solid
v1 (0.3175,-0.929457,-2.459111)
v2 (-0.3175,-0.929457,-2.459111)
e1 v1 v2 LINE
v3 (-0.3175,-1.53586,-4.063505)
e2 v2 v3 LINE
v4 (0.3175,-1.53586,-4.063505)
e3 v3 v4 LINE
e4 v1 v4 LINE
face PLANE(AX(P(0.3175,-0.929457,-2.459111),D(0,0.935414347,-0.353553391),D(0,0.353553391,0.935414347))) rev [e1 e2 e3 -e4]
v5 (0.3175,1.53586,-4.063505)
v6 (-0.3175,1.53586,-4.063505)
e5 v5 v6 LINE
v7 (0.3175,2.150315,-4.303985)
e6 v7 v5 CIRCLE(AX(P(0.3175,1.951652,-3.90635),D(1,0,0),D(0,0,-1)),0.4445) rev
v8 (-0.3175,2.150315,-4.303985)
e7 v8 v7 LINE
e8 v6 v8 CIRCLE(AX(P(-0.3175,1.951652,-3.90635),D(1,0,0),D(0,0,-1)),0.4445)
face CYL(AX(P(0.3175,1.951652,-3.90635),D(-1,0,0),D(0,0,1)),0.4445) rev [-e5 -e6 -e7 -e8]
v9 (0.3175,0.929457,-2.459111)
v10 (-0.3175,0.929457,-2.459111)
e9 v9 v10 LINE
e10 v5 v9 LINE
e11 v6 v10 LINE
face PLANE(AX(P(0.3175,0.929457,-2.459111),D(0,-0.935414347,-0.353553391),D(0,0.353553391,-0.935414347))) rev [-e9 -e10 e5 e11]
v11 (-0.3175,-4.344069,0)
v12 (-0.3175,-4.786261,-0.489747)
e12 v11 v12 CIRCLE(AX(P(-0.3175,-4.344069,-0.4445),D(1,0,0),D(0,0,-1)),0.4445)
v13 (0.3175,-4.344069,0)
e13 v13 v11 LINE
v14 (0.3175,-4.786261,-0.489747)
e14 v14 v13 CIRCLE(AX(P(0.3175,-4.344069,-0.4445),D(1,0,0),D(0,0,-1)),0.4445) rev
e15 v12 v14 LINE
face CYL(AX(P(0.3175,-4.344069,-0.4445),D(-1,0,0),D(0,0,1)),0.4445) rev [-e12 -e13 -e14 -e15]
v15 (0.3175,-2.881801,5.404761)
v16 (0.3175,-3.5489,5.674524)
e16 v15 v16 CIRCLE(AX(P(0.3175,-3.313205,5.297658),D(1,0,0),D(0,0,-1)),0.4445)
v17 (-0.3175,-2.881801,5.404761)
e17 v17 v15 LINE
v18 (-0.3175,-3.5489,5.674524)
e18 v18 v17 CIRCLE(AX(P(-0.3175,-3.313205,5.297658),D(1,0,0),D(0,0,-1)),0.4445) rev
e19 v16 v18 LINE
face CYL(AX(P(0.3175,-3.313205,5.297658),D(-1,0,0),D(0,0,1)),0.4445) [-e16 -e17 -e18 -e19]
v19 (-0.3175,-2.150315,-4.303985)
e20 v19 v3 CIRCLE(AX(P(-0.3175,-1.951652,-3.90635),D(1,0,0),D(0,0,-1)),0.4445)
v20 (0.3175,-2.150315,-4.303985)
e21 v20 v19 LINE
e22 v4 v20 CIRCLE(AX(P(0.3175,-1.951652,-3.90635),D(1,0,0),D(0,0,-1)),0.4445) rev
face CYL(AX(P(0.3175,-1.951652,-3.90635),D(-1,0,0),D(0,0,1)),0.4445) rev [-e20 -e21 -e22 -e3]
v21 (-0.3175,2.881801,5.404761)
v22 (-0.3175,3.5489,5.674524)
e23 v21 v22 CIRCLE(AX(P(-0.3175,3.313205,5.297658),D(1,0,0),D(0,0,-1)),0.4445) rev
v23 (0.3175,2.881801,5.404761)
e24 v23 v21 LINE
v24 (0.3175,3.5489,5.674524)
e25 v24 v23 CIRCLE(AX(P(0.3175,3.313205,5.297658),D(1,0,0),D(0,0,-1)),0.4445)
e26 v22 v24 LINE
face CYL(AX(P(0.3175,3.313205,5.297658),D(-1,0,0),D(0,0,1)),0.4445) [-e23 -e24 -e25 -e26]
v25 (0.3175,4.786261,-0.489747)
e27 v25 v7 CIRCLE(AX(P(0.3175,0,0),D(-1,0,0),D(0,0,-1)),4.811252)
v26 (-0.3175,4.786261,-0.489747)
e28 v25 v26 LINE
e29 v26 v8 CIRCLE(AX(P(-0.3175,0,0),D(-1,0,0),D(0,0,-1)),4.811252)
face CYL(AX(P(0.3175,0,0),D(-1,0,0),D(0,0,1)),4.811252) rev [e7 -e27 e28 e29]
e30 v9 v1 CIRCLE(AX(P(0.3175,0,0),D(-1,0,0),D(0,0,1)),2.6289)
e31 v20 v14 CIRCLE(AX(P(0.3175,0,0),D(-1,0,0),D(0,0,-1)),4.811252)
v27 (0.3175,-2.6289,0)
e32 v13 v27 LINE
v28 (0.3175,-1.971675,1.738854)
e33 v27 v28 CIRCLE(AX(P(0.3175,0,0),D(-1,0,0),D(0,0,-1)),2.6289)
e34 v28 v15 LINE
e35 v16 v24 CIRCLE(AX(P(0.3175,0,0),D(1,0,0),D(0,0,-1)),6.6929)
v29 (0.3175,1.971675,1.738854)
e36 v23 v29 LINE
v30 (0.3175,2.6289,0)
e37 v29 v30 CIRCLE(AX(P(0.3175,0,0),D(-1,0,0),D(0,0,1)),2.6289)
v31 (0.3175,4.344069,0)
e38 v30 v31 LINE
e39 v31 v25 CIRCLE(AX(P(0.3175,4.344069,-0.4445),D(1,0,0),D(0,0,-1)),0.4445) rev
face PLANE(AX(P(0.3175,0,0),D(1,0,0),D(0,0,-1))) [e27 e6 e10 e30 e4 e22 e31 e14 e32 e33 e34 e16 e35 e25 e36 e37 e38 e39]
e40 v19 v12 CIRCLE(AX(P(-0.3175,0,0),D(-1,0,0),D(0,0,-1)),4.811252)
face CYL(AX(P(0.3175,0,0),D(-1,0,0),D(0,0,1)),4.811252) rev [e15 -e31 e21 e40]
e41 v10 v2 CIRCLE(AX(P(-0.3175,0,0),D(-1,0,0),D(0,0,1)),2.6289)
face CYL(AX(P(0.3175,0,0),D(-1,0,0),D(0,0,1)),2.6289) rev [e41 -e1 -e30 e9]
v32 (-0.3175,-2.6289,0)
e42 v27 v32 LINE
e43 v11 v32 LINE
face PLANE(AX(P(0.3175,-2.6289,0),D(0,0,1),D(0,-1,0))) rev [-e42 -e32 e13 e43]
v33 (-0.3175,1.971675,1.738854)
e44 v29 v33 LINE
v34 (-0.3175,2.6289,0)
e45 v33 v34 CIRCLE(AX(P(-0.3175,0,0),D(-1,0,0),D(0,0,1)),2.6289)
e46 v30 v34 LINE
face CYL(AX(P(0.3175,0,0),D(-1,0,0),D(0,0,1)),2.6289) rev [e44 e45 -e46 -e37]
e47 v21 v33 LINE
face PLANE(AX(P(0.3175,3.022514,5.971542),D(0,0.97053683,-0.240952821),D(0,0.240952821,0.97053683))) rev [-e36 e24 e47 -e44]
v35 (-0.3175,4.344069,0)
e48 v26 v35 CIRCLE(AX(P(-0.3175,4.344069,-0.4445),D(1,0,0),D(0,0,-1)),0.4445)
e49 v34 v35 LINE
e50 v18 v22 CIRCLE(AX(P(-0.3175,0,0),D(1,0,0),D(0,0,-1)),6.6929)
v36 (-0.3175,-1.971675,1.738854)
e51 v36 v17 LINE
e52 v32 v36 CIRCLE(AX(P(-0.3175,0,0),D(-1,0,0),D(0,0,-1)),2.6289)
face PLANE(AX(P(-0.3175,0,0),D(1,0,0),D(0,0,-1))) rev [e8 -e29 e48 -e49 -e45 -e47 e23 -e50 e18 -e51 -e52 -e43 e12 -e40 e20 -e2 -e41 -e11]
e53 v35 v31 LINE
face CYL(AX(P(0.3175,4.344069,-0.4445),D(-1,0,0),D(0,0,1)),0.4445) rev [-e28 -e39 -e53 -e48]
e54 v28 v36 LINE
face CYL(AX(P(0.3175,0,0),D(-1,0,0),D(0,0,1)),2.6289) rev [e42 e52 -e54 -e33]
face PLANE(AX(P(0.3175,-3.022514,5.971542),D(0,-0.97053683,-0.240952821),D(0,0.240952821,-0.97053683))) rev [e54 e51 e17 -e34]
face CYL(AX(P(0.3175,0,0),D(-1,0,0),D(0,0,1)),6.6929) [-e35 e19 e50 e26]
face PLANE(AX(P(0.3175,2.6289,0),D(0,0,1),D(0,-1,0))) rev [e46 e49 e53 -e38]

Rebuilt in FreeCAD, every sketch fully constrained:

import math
import FreeCAD as App
import Part
import Sketcher
Q = App.Units.Quantity


def edges_at(feature, points):
    """Names of the edges that pass closest to the given points."""
    edges = feature.Shape.Edges
    near = lambda p: min(range(len(edges)), key=lambda i: edges[i].distToShape(Part.Vertex(*p))[0])
    return sorted({f"Edge{near(p) + 1}" for p in points})

doc = App.newDocument("Part")
params = doc.addObject("Spreadsheet::Sheet", "Params")
for row, (alias, value) in enumerate([
    ("pad1_length", "0.025 in"),
    ("fillet_radius", "0.0175 in"),
], start=1):
    params.set(f"A{row}", alias)
    params.set(f"B{row}", "=" + value)
    params.setAlias(f"B{row}", alias)

body = doc.addObject("PartDesign::Body", "Body")

sketch1 = doc.addObject("Sketcher::SketchObject", "Sketch")
body.addObject(sketch1)
sketch1.AttachmentSupport = (doc.YZ_Plane, [""])
sketch1.MapMode = "FlatFace"
sketch1.addGeometry(Part.LineSegment(App.Vector(-2, 1.7, 0), App.Vector(-3, 6, 0)), False)
sketch1.addGeometry(Part.ArcOfCircle(Part.Circle(App.Vector(0, 0, 0), App.Vector(0, 0, 1), 6.7), math.radians(117), math.radians(423)), False)
sketch1.addGeometry(Part.LineSegment(App.Vector(3, 6, 0), App.Vector(2, 1.7, 0)), False)
sketch1.addGeometry(Part.ArcOfCircle(Part.Circle(App.Vector(0, 0, 0), App.Vector(0, 0, 1), 2.6), math.radians(0), math.radians(41)), False)
sketch1.addGeometry(Part.LineSegment(App.Vector(2.6, 0, 0), App.Vector(4.8, 0, 0)), False)
sketch1.addGeometry(Part.ArcOfCircle(Part.Circle(App.Vector(0, 0, 0), App.Vector(0, 0, 1), 4.8), math.radians(-69), math.radians(0)), False)
sketch1.addGeometry(Part.LineSegment(App.Vector(1.7, -4.5, 0), App.Vector(0.9, -2.5, 0)), False)
sketch1.addGeometry(Part.ArcOfCircle(Part.Circle(App.Vector(0, 0, 0), App.Vector(0, 0, 1), 2.6), math.radians(-111), math.radians(-69)), False)
sketch1.addGeometry(Part.LineSegment(App.Vector(-0.9, -2.5, 0), App.Vector(-1.7, -4.5, 0)), False)
sketch1.addGeometry(Part.ArcOfCircle(Part.Circle(App.Vector(0, 0, 0), App.Vector(0, 0, 1), 4.8), math.radians(180), math.radians(249)), False)
sketch1.addGeometry(Part.LineSegment(App.Vector(-4.8, 0, 0), App.Vector(-2.6, 0, 0)), False)
sketch1.addGeometry(Part.ArcOfCircle(Part.Circle(App.Vector(0, 0, 0), App.Vector(0, 0, 1), 2.6), math.radians(139), math.radians(180)), False)
sketch1.addConstraint(Sketcher.Constraint("Coincident", 0, 2, 1, 1))
sketch1.addConstraint(Sketcher.Constraint("Coincident", 1, 2, 2, 1))
sketch1.addConstraint(Sketcher.Constraint("Coincident", 2, 2, 3, 2))
sketch1.addConstraint(Sketcher.Constraint("Coincident", 3, 1, 4, 1))
sketch1.addConstraint(Sketcher.Constraint("Coincident", 4, 2, 5, 2))
sketch1.addConstraint(Sketcher.Constraint("Coincident", 5, 1, 6, 1))
sketch1.addConstraint(Sketcher.Constraint("Coincident", 6, 2, 7, 2))
sketch1.addConstraint(Sketcher.Constraint("Coincident", 7, 1, 8, 1))
sketch1.addConstraint(Sketcher.Constraint("Coincident", 8, 2, 9, 2))
sketch1.addConstraint(Sketcher.Constraint("Coincident", 9, 1, 10, 1))
sketch1.addConstraint(Sketcher.Constraint("Coincident", 10, 2, 11, 2))
sketch1.addConstraint(Sketcher.Constraint("Coincident", 11, 1, 0, 1))
sketch1.addConstraint(Sketcher.Constraint("Horizontal", 4))
sketch1.addConstraint(Sketcher.Constraint("Horizontal", 10))
sketch1.addConstraint(Sketcher.Constraint("Coincident", 1, 3, -1, 1))
sketch1.addConstraint(Sketcher.Constraint("Coincident", 3, 3, -1, 1))
sketch1.addConstraint(Sketcher.Constraint("Coincident", 5, 3, -1, 1))
sketch1.addConstraint(Sketcher.Constraint("Coincident", 7, 3, -1, 1))
sketch1.addConstraint(Sketcher.Constraint("Coincident", 9, 3, -1, 1))
sketch1.addConstraint(Sketcher.Constraint("Coincident", 11, 3, -1, 1))
sketch1.addConstraint(Sketcher.Constraint("Equal", 3, 7))
sketch1.addConstraint(Sketcher.Constraint("Equal", 5, 9))
sketch1.addConstraint(Sketcher.Constraint("Equal", 7, 11))
sketch1.addConstraint(Sketcher.Constraint("PointOnObject", 3, 1, -1))
sketch1.addConstraint(Sketcher.Constraint("PointOnObject", 9, 1, -1))
sketch1.addConstraint(Sketcher.Constraint("Horizontal", 0, 2, 1, 2))
sketch1.addConstraint(Sketcher.Constraint("Horizontal", 6, 2, 7, 1))
sketch1.addConstraint(Sketcher.Constraint("Horizontal", 5, 1, 8, 2))
sketch1.addConstraint(Sketcher.Constraint("Horizontal", 2, 2, 11, 1))
sketch1.addConstraint(Sketcher.Constraint("Radius", 1, Q("0.2635 in")))
sketch1.addConstraint(Sketcher.Constraint("Radius", 3, Q("0.1035 in")))
sketch1.addConstraint(Sketcher.Constraint("Radius", 5, Q("4.811252 mm")))
sketch1.addConstraint(Sketcher.Constraint("Distance", 0, Q("0.1717001 in")))
sketch1.addConstraint(Sketcher.Constraint("DistanceY", -1, 1, 0, 2, Q("0.2351001 in")))
sketch1.addConstraint(Sketcher.Constraint("DistanceY", 6, 2, -1, 1, Q("2.459111 mm")))
sketch1.addConstraint(Sketcher.Constraint("DistanceX", 8, 2, 6, 2, Q("2.630491 mm")))
pad1 = doc.addObject("PartDesign::Pad", "Pad")
body.addObject(pad1)
pad1.Profile = sketch1
pad1.setExpression("Length", "Params.pad1_length")
pad1.Midplane = True
doc.recompute()

fillet = doc.addObject("PartDesign::Fillet", "Fillet")
body.addObject(fillet)
fillet.Base = (pad1, edges_at(pad1, [
    (0, -3.023, 5.972),
    (0, -4.811, 0),
    (0, -1.701, -4.501),
    (0, 1.701, -4.501),
    (0, 4.811, 0),
    (0, 3.023, 5.972),
]))
fillet.setExpression("Radius", "Params.fillet_radius")

doc.recompute()
